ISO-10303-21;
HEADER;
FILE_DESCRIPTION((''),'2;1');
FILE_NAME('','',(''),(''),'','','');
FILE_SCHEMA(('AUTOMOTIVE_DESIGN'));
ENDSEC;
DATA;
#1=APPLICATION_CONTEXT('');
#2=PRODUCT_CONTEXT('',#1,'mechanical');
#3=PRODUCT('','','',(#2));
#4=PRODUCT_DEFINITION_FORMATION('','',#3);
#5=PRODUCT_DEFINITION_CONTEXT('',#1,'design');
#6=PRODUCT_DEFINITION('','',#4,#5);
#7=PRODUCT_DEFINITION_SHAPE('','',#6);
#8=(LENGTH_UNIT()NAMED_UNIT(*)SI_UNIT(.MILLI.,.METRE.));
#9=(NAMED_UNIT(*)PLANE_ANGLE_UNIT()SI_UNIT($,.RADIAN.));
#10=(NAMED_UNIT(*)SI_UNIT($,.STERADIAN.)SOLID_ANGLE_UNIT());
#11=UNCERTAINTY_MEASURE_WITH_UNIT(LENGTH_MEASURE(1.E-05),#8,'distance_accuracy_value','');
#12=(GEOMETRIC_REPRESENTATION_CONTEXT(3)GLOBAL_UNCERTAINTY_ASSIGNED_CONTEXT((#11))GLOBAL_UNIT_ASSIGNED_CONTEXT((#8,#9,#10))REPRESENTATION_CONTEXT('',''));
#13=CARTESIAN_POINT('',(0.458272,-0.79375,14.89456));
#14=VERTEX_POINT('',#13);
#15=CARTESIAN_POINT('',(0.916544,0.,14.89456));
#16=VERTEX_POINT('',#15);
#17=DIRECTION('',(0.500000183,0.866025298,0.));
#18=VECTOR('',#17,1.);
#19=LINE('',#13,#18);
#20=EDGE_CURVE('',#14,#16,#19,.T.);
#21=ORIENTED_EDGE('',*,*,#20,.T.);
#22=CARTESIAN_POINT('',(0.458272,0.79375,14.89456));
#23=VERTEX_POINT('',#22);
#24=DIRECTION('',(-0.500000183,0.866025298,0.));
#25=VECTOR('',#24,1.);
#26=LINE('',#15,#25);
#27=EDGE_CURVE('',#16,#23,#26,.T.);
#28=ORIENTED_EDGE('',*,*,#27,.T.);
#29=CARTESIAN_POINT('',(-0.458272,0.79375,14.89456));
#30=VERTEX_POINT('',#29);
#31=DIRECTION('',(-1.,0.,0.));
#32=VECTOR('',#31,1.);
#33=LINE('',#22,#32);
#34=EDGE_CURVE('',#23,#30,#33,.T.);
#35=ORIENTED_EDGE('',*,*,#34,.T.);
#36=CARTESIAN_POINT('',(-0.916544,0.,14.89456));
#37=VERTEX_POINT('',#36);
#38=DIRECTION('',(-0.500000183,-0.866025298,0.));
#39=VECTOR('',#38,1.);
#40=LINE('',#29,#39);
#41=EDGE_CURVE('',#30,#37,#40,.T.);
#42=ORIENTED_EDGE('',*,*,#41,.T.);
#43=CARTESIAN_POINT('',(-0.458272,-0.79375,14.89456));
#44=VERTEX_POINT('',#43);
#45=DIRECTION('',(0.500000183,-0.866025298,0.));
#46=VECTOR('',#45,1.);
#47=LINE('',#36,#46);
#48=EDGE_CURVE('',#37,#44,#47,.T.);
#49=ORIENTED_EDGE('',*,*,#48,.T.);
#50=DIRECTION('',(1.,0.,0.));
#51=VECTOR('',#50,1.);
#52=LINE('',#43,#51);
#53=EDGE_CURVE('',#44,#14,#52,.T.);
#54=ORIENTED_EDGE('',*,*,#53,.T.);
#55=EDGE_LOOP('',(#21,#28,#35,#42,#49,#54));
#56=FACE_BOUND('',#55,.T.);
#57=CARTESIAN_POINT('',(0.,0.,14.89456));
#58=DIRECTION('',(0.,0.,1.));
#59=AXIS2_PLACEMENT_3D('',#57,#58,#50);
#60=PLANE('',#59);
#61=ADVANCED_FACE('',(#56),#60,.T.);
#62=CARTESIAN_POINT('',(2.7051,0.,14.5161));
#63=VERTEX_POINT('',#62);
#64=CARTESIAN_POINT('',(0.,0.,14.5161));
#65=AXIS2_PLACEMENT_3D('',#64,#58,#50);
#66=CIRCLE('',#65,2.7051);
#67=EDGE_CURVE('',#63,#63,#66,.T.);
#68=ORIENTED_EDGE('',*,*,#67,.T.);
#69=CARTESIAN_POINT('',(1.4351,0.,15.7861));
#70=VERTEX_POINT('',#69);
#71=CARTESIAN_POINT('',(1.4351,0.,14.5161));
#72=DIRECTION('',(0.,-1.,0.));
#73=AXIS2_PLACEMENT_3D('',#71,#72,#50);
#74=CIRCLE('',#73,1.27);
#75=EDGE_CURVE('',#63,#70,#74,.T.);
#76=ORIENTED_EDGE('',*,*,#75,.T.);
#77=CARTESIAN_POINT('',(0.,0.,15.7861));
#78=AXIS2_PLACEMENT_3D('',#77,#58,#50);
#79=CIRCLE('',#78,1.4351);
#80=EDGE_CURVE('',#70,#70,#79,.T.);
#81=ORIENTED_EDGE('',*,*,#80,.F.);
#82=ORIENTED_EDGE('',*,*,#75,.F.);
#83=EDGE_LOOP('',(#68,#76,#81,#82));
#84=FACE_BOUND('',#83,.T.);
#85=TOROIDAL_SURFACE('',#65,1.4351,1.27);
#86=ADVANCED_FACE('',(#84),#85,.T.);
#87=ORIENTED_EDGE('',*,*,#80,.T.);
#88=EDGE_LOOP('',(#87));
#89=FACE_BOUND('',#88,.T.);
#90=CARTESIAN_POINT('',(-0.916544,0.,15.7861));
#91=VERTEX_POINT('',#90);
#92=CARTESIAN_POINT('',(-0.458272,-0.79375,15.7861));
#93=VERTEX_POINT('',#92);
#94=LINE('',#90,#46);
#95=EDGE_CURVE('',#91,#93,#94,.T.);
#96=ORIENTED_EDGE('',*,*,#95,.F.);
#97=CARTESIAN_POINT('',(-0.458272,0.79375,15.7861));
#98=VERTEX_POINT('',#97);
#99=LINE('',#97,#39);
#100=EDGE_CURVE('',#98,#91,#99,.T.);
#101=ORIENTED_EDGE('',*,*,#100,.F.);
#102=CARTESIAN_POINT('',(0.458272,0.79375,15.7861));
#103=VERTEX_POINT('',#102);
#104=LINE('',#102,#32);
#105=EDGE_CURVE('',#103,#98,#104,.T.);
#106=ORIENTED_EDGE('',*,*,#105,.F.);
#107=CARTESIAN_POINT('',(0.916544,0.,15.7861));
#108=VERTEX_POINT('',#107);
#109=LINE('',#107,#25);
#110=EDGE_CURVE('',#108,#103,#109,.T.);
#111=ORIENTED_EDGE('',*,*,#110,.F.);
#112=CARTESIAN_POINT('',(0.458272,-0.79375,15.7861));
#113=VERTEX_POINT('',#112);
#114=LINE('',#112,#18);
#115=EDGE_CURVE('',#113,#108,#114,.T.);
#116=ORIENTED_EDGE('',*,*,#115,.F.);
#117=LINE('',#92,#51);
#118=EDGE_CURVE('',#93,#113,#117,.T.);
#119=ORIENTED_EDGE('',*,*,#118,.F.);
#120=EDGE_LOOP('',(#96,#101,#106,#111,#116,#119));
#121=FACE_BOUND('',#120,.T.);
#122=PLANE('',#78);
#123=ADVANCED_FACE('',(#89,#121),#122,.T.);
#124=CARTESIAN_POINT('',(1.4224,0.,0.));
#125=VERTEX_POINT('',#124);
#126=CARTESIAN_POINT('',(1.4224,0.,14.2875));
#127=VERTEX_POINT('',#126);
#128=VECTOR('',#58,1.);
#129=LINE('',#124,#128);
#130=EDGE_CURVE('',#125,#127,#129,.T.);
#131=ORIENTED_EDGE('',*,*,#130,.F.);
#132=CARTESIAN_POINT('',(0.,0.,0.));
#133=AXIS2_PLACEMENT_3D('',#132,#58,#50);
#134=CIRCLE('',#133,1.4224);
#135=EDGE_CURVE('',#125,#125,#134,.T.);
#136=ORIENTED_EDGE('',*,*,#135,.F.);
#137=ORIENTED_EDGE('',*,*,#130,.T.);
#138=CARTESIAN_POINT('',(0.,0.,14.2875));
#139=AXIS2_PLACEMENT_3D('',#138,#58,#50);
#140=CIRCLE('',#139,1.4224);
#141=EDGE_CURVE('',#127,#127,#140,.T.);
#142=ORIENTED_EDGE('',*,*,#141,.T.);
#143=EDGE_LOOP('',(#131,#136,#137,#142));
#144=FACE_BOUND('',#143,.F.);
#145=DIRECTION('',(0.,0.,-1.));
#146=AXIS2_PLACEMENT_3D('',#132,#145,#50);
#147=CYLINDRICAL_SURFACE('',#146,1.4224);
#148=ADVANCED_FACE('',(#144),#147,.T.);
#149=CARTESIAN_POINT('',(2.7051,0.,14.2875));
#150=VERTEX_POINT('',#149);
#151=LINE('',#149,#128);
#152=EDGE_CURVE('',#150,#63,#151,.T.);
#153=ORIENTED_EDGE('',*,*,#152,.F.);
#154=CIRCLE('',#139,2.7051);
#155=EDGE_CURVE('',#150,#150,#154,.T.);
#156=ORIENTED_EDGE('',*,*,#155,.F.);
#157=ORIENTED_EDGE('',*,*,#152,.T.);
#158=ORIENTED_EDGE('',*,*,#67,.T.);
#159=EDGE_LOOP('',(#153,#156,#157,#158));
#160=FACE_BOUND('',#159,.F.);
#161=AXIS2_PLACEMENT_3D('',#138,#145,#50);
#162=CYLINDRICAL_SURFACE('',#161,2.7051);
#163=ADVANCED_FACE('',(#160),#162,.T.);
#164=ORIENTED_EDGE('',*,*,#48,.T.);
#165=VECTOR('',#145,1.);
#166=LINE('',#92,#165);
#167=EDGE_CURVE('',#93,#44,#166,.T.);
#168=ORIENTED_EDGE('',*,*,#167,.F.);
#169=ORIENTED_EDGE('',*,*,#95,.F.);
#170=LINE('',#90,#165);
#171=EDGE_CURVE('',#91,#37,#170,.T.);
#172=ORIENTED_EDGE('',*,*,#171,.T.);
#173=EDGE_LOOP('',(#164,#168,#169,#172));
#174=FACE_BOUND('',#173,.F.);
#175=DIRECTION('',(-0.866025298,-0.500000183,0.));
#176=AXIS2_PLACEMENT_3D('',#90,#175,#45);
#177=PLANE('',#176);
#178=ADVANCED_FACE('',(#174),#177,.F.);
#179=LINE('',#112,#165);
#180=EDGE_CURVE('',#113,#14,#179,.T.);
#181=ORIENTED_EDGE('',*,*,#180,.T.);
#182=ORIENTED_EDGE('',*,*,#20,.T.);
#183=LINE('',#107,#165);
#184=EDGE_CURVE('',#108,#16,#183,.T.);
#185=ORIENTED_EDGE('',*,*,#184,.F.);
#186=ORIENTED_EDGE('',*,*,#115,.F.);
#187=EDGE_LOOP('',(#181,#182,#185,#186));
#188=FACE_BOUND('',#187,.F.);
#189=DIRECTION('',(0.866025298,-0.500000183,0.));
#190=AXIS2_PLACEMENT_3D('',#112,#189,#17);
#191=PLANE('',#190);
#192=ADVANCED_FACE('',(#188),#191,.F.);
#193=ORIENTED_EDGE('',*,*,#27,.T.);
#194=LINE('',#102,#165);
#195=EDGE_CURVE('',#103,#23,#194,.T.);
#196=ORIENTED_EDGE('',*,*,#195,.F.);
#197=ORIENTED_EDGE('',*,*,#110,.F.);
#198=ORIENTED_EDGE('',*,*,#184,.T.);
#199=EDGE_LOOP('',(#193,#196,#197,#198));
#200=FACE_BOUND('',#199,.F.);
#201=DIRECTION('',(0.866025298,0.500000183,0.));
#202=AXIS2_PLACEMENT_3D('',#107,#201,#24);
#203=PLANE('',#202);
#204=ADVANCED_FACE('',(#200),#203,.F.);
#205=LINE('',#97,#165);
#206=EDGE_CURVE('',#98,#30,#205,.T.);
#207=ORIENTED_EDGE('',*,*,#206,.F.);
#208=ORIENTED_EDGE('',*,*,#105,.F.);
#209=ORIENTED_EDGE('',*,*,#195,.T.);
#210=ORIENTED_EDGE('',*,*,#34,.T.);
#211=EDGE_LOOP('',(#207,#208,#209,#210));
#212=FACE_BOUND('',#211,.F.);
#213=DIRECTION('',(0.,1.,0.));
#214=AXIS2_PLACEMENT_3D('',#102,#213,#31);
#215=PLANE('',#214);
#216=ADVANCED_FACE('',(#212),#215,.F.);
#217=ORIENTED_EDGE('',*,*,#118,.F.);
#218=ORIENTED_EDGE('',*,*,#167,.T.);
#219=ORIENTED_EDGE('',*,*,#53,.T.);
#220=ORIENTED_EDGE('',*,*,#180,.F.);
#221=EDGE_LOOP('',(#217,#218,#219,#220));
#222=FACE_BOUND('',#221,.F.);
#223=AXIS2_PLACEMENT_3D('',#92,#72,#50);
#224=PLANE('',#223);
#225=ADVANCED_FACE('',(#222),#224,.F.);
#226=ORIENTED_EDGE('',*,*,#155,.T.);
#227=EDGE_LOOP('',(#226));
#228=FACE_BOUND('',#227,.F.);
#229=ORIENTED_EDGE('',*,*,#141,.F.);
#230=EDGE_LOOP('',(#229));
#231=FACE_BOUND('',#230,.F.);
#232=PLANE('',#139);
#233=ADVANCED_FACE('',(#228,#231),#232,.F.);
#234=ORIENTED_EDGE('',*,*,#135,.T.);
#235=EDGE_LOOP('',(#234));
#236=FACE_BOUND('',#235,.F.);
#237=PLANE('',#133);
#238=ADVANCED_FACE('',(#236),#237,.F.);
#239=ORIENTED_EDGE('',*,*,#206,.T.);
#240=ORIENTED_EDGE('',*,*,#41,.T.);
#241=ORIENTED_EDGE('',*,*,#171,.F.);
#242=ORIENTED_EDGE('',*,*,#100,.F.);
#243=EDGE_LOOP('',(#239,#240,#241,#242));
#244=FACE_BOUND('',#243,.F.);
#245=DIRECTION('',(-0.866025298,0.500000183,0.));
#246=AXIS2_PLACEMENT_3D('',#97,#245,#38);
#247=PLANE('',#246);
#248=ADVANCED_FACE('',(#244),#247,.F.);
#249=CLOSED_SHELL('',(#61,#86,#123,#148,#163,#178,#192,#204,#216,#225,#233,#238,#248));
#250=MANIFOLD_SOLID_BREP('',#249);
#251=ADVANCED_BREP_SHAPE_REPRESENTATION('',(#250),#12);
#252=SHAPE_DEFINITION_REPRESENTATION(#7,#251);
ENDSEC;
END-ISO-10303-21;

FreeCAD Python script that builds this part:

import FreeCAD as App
import Part
import Sketcher
Q = App.Units.Quantity


def edges_at(feature, points):
    """Names of the edges that pass closest to the given points."""
    edges = feature.Shape.Edges
    near = lambda p: min(range(len(edges)), key=lambda i: edges[i].distToShape(Part.Vertex(*p))[0])
    return sorted({f"Edge{near(p) + 1}" for p in points})


def add_polygon(sketch, points):
    """Adds a closed chain of lines whose ends are joined by coincident constraints."""
    first, n = sketch.GeometryCount, len(points)
    for a, b in zip(points, points[1:] + points[:1]):
        sketch.addGeometry(Part.LineSegment(App.Vector(*a, 0), App.Vector(*b, 0)), False)
    for i in range(n):
        sketch.addConstraint(Sketcher.Constraint("Coincident", first + i, 2, first + (i + 1) % n, 1))

doc = App.newDocument("Part")
params = doc.addObject("Spreadsheet::Sheet", "Params")
for row, (alias, value) in enumerate([
    ("sketch1_diameter", "0.112 in"),
    ("pad1_length", "0.5625 in"),
    ("sketch2_diameter", "0.213 in"),
    ("pad2_length", "0.059 in"),
    ("fillet_radius", "0.05 in"),
    ("pocket1_length", "0.0351 in"),
], start=1):
    params.set(f"A{row}", alias)
    params.set(f"B{row}", "=" + value)
    params.setAlias(f"B{row}", alias)

body = doc.addObject("PartDesign::Body", "Body")

sketch1 = body.newObject("Sketcher::SketchObject", "Sketch")
sketch1.AttachmentSupport = (doc.getObject("XY_Plane"), [""])
sketch1.MapMode = "FlatFace"
sketch1.addGeometry(Part.Circle(App.Vector(0, 0, 0), App.Vector(0, 0, 1), 1.4), False)
sketch1.addConstraint([
    Sketcher.Constraint("Coincident", 0, 3, -1, 1),
    Sketcher.Constraint("Diameter", 0, Q("0.112 in")),
])
sketch1.setExpression("Constraints[1]", "Params.sketch1_diameter")
pad1 = body.newObject("PartDesign::Pad", "Pad")
pad1.Profile = sketch1
pad1.setExpression("Length", "Params.pad1_length")

sketch2 = body.newObject("Sketcher::SketchObject", "Sketch001")
sketch2.AttachmentSupport = (doc.getObject("XY_Plane"), [""])
sketch2.MapMode = "FlatFace"
sketch2.AttachmentOffset = App.Placement(App.Vector(0, 0, 0.5625 * 25.4), App.Rotation())
sketch2.addGeometry(Part.Circle(App.Vector(0, 0, 0), App.Vector(0, 0, 1), 2.7), False)
sketch2.addConstraint([
    Sketcher.Constraint("Coincident", 0, 3, -1, 1),
    Sketcher.Constraint("Diameter", 0, Q("0.213 in")),
])
sketch2.setExpression("Constraints[1]", "Params.sketch2_diameter")
pad2 = body.newObject("PartDesign::Pad", "Pad001")
pad2.Profile = sketch2
pad2.setExpression("Length", "Params.pad2_length")
doc.recompute()

fillet = body.newObject("PartDesign::Fillet", "Fillet")
fillet.Base = (pad2, edges_at(pad2, [(-2.705, 0, 15.786)]))
fillet.setExpression("Radius", "Params.fillet_radius")

sketch3 = body.newObject("Sketcher::SketchObject", "Sketch002")
sketch3.AttachmentSupport = (doc.getObject("XY_Plane"), [""])
sketch3.MapMode = "FlatFace"
sketch3.AttachmentOffset = App.Placement(App.Vector(0, 0, 0.6215 * 25.4), App.Rotation())
add_polygon(sketch3, [(0.5, -0.8), (0.9, 0), (0.5, 0.8), (-0.5, 0.8), (-0.9, 0), (-0.5, -0.8)])
sketch3.addConstraint([
    Sketcher.Constraint("Horizontal", 2),
    Sketcher.Constraint("Horizontal", 5),
    Sketcher.Constraint("Symmetric", 0, 2, 3, 2, -1, 1),
    Sketcher.Constraint("Symmetric", 1, 2, 4, 2, -1, 1),
    Sketcher.Constraint("PointOnObject", 0, 2, -1),
    Sketcher.Constraint("Parallel", 0, 3),
    Sketcher.Constraint("Vertical", 2, 2, 4, 2),
    Sketcher.Constraint("Angle", 0, Q("59.999988 deg")),
    Sketcher.Constraint("DistanceY", -1, 1, 1, 2, Q("0.03125 in")),
    Sketcher.Constraint("DistanceX", 2, 2, 2, 1, Q("0.916544 mm")),
])
pocket1 = body.newObject("PartDesign::Pocket", "Pocket")
pocket1.Profile = sketch3
pocket1.setExpression("Length", "Params.pocket1_length")

doc.recompute()
